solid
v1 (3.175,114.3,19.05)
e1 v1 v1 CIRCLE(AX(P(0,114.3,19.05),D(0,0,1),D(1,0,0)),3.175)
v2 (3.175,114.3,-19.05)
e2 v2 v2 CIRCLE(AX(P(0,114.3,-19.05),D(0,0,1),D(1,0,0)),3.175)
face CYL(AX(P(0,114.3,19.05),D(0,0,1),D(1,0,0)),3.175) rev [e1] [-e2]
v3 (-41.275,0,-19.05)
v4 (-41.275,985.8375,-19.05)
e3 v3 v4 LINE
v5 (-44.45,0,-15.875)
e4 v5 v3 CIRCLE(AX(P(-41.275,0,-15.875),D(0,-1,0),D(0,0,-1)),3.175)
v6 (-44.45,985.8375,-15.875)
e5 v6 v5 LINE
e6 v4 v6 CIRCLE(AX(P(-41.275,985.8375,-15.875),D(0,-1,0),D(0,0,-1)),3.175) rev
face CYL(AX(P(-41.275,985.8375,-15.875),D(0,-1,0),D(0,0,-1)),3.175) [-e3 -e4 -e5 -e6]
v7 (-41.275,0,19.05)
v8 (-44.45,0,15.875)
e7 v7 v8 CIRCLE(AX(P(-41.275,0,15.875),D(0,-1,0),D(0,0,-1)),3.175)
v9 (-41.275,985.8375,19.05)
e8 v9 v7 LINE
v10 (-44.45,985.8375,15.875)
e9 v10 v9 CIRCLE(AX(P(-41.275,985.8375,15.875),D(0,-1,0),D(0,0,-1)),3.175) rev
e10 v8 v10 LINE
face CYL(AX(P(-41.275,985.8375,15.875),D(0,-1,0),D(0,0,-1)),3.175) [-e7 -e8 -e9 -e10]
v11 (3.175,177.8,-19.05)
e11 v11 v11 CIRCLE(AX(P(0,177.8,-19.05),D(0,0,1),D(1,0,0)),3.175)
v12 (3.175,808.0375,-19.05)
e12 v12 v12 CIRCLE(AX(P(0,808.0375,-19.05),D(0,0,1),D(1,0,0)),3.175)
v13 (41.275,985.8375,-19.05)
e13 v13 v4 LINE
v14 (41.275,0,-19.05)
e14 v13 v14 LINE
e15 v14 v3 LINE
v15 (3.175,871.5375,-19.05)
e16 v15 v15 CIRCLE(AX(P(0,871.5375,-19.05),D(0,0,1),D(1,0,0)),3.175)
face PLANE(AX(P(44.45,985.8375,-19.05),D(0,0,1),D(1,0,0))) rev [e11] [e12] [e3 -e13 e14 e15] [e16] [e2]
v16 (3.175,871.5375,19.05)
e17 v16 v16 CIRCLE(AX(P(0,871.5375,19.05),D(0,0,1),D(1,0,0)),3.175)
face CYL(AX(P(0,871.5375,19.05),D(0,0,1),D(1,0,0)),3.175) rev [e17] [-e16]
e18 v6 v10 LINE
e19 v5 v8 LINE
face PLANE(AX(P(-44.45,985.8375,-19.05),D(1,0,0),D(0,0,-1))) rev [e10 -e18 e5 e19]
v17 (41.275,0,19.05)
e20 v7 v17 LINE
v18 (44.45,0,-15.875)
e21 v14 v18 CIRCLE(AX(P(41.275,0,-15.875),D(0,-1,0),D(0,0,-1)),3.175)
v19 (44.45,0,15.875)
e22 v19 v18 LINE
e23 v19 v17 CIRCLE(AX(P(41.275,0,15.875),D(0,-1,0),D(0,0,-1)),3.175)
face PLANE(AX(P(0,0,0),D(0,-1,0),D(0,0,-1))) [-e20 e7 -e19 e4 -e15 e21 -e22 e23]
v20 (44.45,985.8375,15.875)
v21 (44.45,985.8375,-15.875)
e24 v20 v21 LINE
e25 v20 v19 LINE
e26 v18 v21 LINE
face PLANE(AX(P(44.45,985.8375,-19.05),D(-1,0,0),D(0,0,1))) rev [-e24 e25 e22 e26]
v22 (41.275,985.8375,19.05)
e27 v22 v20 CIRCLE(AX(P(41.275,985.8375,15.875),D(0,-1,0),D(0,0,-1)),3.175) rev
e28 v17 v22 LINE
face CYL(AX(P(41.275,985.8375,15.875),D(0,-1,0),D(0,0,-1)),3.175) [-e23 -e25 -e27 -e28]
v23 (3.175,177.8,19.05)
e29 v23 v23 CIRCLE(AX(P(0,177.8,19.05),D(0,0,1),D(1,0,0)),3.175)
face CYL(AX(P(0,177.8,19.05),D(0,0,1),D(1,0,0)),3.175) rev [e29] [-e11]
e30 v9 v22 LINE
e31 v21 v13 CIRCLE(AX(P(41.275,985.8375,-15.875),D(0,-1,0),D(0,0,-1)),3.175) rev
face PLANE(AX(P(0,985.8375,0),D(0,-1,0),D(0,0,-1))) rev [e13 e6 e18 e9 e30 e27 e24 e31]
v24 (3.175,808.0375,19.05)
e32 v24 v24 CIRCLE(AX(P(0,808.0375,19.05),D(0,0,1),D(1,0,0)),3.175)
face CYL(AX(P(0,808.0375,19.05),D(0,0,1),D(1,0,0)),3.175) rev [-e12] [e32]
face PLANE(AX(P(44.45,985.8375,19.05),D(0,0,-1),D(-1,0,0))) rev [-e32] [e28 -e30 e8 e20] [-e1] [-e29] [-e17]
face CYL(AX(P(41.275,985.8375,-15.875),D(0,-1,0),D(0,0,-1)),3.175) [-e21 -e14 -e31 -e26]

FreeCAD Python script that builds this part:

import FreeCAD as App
import Part
import Sketcher

V = App.Vector
Q = App.Units.Quantity


def edges_at(feature, points):
    """Names of the edges that pass closest to the given points."""
    edges = feature.Shape.Edges
    near = lambda p: min(range(len(edges)), key=lambda i: edges[i].distToShape(Part.Vertex(*p))[0])
    return sorted({f"Edge{near(p) + 1}" for p in points})

doc = App.newDocument("Part")
body = doc.addObject("PartDesign::Body", "Body")

# Sketch on XZ plane
sketch1 = doc.addObject("Sketcher::SketchObject", "Sketch")
body.addObject(sketch1)
sketch1.AttachmentSupport = (doc.XZ_Plane, [""])
sketch1.MapMode = "FlatFace"
sketch1.addGeometry(Part.LineSegment(V(-44, -19, 0), V(-44, 19, 0)), False)
sketch1.addGeometry(Part.LineSegment(V(-44, 19, 0), V(44, 19, 0)), False)
sketch1.addGeometry(Part.LineSegment(V(44, 19, 0), V(44, -19, 0)), False)
sketch1.addGeometry(Part.LineSegment(V(44, -19, 0), V(-44, -19, 0)), False)
sketch1.addConstraint(Sketcher.Constraint("Coincident", 0, 2, 1, 1))
sketch1.addConstraint(Sketcher.Constraint("Coincident", 1, 2, 2, 1))
sketch1.addConstraint(Sketcher.Constraint("Coincident", 2, 2, 3, 1))
sketch1.addConstraint(Sketcher.Constraint("Coincident", 3, 2, 0, 1))
sketch1.addConstraint(Sketcher.Constraint("Vertical", 0))
sketch1.addConstraint(Sketcher.Constraint("Horizontal", 1))
sketch1.addConstraint(Sketcher.Constraint("Vertical", 2))
sketch1.addConstraint(Sketcher.Constraint("Horizontal", 3))
sketch1.addConstraint(Sketcher.Constraint("Symmetric", 0, 2, 2, 2, -1, 1))
sketch1.addConstraint(Sketcher.Constraint("DistanceX", 1, 1, 1, 2, Q("3.5 in")))
sketch1.addConstraint(Sketcher.Constraint("DistanceY", 0, 1, 0, 2, Q("1.5 in")))
pad1 = doc.addObject("PartDesign::Pad", "Pad")
body.addObject(pad1)
pad1.Profile = sketch1
pad1.Length = Q("38.8125 in")
pad1.Reversed = True
doc.recompute()

fillet = doc.addObject("PartDesign::Fillet", "Fillet")
body.addObject(fillet)
fillet.Base = (pad1, edges_at(pad1, [
    (-44.45, 492.919, -19.05),
    (44.45, 492.919, -19.05),
    (44.45, 492.919, 19.05),
    (-44.45, 492.919, 19.05),
]))
fillet.Radius = Q("0.125 in")

# Sketch on XY plane
sketch2 = doc.addObject("Sketcher::SketchObject", "Sketch001")
body.addObject(sketch2)
sketch2.AttachmentSupport = (doc.XY_Plane, [""])
sketch2.MapMode = "FlatFace"
sketch2.AttachmentOffset = App.Placement(V(0, 0, 0.75 * 25.4), App.Rotation())
sketch2.addGeometry(Part.Circle(V(0, 114.3, 0), V(0, 0, 1), 3.2), False)
sketch2.addGeometry(Part.Circle(V(0, 177.8, 0), V(0, 0, 1), 3.2), False)
sketch2.addGeometry(Part.Circle(V(0, 808, 0), V(0, 0, 1), 3.2), False)
sketch2.addGeometry(Part.Circle(V(0, 871.5, 0), V(0, 0, 1), 3.2), False)
sketch2.addConstraint(Sketcher.Constraint("Equal", 0, 1))
sketch2.addConstraint(Sketcher.Constraint("Equal", 1, 2))
sketch2.addConstraint(Sketcher.Constraint("Equal", 2, 3))
sketch2.addConstraint(Sketcher.Constraint("PointOnObject", 0, 3, -2))
sketch2.addConstraint(Sketcher.Constraint("PointOnObject", 1, 3, -2))
sketch2.addConstraint(Sketcher.Constraint("PointOnObject", 2, 3, -2))
sketch2.addConstraint(Sketcher.Constraint("PointOnObject", 3, 3, -2))
sketch2.addConstraint(Sketcher.Constraint("Diameter", 0, Q("0.25 in")))
sketch2.addConstraint(Sketcher.Constraint("DistanceY", -1, 1, 1, 3, Q("7 in")))
sketch2.addConstraint(Sketcher.Constraint("DistanceY", -1, 1, 0, 3, Q("4.5 in")))
sketch2.addConstraint(Sketcher.Constraint("DistanceY", 2, 3, 3, 3, Q("2.5 in")))
sketch2.addConstraint(Sketcher.Constraint("DistanceY", -1, 1, 2, 3, Q("31.8125 in")))
doc.recompute()
hole = doc.addObject("PartDesign::Hole", "Hole")
body.addObject(hole)
hole.Profile = sketch2
hole.ThreadType = "None"
hole.Diameter = Q("0.25 in")
hole.DepthType = "ThroughAll"

doc.recompute()
